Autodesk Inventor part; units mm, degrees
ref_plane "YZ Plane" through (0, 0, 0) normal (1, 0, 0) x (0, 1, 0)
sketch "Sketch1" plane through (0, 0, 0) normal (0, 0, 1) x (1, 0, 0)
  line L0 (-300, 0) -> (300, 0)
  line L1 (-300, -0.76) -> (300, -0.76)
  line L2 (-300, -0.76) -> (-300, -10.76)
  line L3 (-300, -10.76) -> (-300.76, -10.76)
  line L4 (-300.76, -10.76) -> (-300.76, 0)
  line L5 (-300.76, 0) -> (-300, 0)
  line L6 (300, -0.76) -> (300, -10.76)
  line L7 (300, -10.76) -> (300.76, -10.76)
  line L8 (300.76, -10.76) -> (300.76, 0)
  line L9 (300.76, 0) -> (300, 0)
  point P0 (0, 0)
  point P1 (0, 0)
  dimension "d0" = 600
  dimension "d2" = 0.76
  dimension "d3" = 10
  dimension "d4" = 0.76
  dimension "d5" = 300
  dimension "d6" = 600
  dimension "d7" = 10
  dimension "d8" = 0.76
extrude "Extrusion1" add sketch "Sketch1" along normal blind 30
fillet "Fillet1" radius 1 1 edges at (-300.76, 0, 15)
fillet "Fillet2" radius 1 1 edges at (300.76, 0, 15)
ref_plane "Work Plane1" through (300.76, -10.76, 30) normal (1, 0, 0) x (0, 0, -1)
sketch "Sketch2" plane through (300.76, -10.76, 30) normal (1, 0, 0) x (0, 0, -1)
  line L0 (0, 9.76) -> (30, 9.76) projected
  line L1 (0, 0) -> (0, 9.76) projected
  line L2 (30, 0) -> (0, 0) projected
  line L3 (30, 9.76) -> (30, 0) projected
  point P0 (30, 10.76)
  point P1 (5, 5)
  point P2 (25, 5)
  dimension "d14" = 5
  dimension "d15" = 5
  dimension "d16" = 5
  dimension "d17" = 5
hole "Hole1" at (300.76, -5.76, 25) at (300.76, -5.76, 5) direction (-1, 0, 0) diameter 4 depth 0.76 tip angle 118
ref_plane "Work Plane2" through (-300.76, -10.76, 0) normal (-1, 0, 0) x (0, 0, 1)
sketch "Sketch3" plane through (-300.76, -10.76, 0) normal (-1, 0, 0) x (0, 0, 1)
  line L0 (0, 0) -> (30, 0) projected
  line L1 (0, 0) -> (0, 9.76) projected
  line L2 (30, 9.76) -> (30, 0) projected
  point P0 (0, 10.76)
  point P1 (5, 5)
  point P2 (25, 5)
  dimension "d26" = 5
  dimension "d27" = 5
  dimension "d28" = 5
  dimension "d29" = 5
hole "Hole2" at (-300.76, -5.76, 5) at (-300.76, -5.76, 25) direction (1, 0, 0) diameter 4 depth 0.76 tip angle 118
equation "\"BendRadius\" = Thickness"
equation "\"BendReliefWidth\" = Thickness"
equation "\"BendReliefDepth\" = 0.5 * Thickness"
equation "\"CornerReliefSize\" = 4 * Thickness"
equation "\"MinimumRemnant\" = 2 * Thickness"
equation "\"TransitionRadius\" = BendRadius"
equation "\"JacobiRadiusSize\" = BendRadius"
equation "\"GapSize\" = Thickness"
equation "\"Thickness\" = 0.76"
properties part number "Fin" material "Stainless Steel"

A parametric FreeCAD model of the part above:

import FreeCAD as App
import Part
import Sketcher

V = App.Vector
Q = App.Units.Quantity


def edges_at(feature, points):
    """Names of the edges that pass closest to the given points."""
    edges = feature.Shape.Edges
    near = lambda p: min(range(len(edges)), key=lambda i: edges[i].distToShape(Part.Vertex(*p))[0])
    return sorted({f"Edge{near(p) + 1}" for p in points})


def add_polygon(sketch, points):
    """Adds a closed chain of lines whose ends are joined by coincident constraints."""
    first, n = sketch.GeometryCount, len(points)
    for a, b in zip(points, points[1:] + points[:1]):
        sketch.addGeometry(Part.LineSegment(App.Vector(*a, 0), App.Vector(*b, 0)), False)
    for i in range(n):
        sketch.addConstraint(Sketcher.Constraint("Coincident", first + i, 2, first + (i + 1) % n, 1))

doc = App.newDocument("Part")
body = doc.addObject("PartDesign::Body", "Body")

sketch1 = doc.addObject("Sketcher::SketchObject", "Sketch")
body.addObject(sketch1)
sketch1.AttachmentSupport = (doc.XY_Plane, [""])
sketch1.MapMode = "FlatFace"
add_polygon(sketch1, [(300.76, 0), (-300.76, 0), (-300.76, -10.76), (-300, -10.76), (-300, -0.76), (300, -0.76), (300, -10.76), (300.76, -10.76)])
sketch1.addConstraint(Sketcher.Constraint("Horizontal", 0))
sketch1.addConstraint(Sketcher.Constraint("Vertical", 1))
sketch1.addConstraint(Sketcher.Constraint("Horizontal", 2))
sketch1.addConstraint(Sketcher.Constraint("Vertical", 3))
sketch1.addConstraint(Sketcher.Constraint("Horizontal", 4))
sketch1.addConstraint(Sketcher.Constraint("Vertical", 5))
sketch1.addConstraint(Sketcher.Constraint("Horizontal", 6))
sketch1.addConstraint(Sketcher.Constraint("Vertical", 7))
sketch1.addConstraint(Sketcher.Constraint("Symmetric", 0, 2, 7, 2, -1, 1))
sketch1.addConstraint(Sketcher.Constraint("Symmetric", 2, 2, 5, 2, -2))
sketch1.addConstraint(Sketcher.Constraint("DistanceX", 4, 1, 4, 2, Q("600 mm")))
sketch1.addConstraint(Sketcher.Constraint("DistanceY", 3, 1, 3, 2, Q("10 mm")))
sketch1.addConstraint(Sketcher.Constraint("DistanceX", 2, 1, 2, 2, Q("0.76 mm")))
sketch1.addConstraint(Sketcher.Constraint("DistanceY", 3, 2, -1, 1, Q("0.76 mm")))
pad1 = doc.addObject("PartDesign::Pad", "Pad")
body.addObject(pad1)
pad1.Profile = sketch1
pad1.Length = 30
doc.recompute()

fillet = doc.addObject("PartDesign::Fillet", "Fillet")
body.addObject(fillet)
fillet.Base = (pad1, edges_at(pad1, [(-300.76, 0, 15)]))
fillet.Radius = 1
doc.recompute()

fillet2 = doc.addObject("PartDesign::Fillet", "Fillet001")
body.addObject(fillet2)
fillet2.Base = (fillet, edges_at(fillet, [(300.76, 0, 15)]))
fillet2.Radius = 1

sketch2 = doc.addObject("Sketcher::SketchObject", "Sketch001")
body.addObject(sketch2)
sketch2.AttachmentSupport = (doc.YZ_Plane, [""])
sketch2.MapMode = "FlatFace"
sketch2.AttachmentOffset = App.Placement(V(0, 0, 300.76), App.Rotation())
sketch2.addGeometry(Part.Circle(V(-5.76, 25, 0), V(0, 0, 1), 2), False)
sketch2.addGeometry(Part.Circle(V(-5.76, 5, 0), V(0, 0, 1), 2), False)
sketch2.addConstraint(Sketcher.Constraint("Equal", 0, 1))
sketch2.addConstraint(Sketcher.Constraint("Vertical", 0, 3, 1, 3))
sketch2.addConstraint(Sketcher.Constraint("Diameter", 0, Q("4 mm")))
sketch2.addConstraint(Sketcher.Constraint("DistanceY", -1, 1, 0, 3, Q("25 mm")))
sketch2.addConstraint(Sketcher.Constraint("DistanceY", -1, 1, 1, 3, Q("5 mm")))
sketch2.addConstraint(Sketcher.Constraint("DistanceX", 0, 3, -1, 1, Q("5.76 mm")))
doc.recompute()
hole = doc.addObject("PartDesign::Hole", "Hole")
body.addObject(hole)
hole.Profile = sketch2
hole.ThreadType = "None"
hole.Diameter = 4
hole.DepthType = "Dimension"
hole.Depth = 0.76
hole.DrillPoint = "Angled"
hole.DrillPointAngle = 118

sketch3 = doc.addObject("Sketcher::SketchObject", "Sketch002")
body.addObject(sketch3)
sketch3.AttachmentSupport = (doc.YZ_Plane, [""])
sketch3.MapMode = "FlatFace"
sketch3.AttachmentOffset = App.Placement(V(0, 0, -300.76), App.Rotation())
sketch3.addGeometry(Part.Circle(V(-5.76, 5, 0), V(0, 0, 1), 2), False)
sketch3.addGeometry(Part.Circle(V(-5.76, 25, 0), V(0, 0, 1), 2), False)
sketch3.addConstraint(Sketcher.Constraint("Equal", 0, 1))
sketch3.addConstraint(Sketcher.Constraint("Vertical", 0, 3, 1, 3))
sketch3.addConstraint(Sketcher.Constraint("Diameter", 0, Q("4 mm")))
sketch3.addConstraint(Sketcher.Constraint("DistanceY", -1, 1, 0, 3, Q("5 mm")))
sketch3.addConstraint(Sketcher.Constraint("DistanceY", -1, 1, 1, 3, Q("25 mm")))
sketch3.addConstraint(Sketcher.Constraint("DistanceX", 0, 3, -1, 1, Q("5.76 mm")))
doc.recompute()
hole2 = doc.addObject("PartDesign::Hole", "Hole001")
body.addObject(hole2)
hole2.Profile = sketch3
hole2.ThreadType = "None"
hole2.Diameter = 4
hole2.DepthType = "Dimension"
hole2.Depth = 0.76
hole2.DrillPoint = "Angled"
hole2.DrillPointAngle = 118
hole2.Reversed = True

doc.recompute()
